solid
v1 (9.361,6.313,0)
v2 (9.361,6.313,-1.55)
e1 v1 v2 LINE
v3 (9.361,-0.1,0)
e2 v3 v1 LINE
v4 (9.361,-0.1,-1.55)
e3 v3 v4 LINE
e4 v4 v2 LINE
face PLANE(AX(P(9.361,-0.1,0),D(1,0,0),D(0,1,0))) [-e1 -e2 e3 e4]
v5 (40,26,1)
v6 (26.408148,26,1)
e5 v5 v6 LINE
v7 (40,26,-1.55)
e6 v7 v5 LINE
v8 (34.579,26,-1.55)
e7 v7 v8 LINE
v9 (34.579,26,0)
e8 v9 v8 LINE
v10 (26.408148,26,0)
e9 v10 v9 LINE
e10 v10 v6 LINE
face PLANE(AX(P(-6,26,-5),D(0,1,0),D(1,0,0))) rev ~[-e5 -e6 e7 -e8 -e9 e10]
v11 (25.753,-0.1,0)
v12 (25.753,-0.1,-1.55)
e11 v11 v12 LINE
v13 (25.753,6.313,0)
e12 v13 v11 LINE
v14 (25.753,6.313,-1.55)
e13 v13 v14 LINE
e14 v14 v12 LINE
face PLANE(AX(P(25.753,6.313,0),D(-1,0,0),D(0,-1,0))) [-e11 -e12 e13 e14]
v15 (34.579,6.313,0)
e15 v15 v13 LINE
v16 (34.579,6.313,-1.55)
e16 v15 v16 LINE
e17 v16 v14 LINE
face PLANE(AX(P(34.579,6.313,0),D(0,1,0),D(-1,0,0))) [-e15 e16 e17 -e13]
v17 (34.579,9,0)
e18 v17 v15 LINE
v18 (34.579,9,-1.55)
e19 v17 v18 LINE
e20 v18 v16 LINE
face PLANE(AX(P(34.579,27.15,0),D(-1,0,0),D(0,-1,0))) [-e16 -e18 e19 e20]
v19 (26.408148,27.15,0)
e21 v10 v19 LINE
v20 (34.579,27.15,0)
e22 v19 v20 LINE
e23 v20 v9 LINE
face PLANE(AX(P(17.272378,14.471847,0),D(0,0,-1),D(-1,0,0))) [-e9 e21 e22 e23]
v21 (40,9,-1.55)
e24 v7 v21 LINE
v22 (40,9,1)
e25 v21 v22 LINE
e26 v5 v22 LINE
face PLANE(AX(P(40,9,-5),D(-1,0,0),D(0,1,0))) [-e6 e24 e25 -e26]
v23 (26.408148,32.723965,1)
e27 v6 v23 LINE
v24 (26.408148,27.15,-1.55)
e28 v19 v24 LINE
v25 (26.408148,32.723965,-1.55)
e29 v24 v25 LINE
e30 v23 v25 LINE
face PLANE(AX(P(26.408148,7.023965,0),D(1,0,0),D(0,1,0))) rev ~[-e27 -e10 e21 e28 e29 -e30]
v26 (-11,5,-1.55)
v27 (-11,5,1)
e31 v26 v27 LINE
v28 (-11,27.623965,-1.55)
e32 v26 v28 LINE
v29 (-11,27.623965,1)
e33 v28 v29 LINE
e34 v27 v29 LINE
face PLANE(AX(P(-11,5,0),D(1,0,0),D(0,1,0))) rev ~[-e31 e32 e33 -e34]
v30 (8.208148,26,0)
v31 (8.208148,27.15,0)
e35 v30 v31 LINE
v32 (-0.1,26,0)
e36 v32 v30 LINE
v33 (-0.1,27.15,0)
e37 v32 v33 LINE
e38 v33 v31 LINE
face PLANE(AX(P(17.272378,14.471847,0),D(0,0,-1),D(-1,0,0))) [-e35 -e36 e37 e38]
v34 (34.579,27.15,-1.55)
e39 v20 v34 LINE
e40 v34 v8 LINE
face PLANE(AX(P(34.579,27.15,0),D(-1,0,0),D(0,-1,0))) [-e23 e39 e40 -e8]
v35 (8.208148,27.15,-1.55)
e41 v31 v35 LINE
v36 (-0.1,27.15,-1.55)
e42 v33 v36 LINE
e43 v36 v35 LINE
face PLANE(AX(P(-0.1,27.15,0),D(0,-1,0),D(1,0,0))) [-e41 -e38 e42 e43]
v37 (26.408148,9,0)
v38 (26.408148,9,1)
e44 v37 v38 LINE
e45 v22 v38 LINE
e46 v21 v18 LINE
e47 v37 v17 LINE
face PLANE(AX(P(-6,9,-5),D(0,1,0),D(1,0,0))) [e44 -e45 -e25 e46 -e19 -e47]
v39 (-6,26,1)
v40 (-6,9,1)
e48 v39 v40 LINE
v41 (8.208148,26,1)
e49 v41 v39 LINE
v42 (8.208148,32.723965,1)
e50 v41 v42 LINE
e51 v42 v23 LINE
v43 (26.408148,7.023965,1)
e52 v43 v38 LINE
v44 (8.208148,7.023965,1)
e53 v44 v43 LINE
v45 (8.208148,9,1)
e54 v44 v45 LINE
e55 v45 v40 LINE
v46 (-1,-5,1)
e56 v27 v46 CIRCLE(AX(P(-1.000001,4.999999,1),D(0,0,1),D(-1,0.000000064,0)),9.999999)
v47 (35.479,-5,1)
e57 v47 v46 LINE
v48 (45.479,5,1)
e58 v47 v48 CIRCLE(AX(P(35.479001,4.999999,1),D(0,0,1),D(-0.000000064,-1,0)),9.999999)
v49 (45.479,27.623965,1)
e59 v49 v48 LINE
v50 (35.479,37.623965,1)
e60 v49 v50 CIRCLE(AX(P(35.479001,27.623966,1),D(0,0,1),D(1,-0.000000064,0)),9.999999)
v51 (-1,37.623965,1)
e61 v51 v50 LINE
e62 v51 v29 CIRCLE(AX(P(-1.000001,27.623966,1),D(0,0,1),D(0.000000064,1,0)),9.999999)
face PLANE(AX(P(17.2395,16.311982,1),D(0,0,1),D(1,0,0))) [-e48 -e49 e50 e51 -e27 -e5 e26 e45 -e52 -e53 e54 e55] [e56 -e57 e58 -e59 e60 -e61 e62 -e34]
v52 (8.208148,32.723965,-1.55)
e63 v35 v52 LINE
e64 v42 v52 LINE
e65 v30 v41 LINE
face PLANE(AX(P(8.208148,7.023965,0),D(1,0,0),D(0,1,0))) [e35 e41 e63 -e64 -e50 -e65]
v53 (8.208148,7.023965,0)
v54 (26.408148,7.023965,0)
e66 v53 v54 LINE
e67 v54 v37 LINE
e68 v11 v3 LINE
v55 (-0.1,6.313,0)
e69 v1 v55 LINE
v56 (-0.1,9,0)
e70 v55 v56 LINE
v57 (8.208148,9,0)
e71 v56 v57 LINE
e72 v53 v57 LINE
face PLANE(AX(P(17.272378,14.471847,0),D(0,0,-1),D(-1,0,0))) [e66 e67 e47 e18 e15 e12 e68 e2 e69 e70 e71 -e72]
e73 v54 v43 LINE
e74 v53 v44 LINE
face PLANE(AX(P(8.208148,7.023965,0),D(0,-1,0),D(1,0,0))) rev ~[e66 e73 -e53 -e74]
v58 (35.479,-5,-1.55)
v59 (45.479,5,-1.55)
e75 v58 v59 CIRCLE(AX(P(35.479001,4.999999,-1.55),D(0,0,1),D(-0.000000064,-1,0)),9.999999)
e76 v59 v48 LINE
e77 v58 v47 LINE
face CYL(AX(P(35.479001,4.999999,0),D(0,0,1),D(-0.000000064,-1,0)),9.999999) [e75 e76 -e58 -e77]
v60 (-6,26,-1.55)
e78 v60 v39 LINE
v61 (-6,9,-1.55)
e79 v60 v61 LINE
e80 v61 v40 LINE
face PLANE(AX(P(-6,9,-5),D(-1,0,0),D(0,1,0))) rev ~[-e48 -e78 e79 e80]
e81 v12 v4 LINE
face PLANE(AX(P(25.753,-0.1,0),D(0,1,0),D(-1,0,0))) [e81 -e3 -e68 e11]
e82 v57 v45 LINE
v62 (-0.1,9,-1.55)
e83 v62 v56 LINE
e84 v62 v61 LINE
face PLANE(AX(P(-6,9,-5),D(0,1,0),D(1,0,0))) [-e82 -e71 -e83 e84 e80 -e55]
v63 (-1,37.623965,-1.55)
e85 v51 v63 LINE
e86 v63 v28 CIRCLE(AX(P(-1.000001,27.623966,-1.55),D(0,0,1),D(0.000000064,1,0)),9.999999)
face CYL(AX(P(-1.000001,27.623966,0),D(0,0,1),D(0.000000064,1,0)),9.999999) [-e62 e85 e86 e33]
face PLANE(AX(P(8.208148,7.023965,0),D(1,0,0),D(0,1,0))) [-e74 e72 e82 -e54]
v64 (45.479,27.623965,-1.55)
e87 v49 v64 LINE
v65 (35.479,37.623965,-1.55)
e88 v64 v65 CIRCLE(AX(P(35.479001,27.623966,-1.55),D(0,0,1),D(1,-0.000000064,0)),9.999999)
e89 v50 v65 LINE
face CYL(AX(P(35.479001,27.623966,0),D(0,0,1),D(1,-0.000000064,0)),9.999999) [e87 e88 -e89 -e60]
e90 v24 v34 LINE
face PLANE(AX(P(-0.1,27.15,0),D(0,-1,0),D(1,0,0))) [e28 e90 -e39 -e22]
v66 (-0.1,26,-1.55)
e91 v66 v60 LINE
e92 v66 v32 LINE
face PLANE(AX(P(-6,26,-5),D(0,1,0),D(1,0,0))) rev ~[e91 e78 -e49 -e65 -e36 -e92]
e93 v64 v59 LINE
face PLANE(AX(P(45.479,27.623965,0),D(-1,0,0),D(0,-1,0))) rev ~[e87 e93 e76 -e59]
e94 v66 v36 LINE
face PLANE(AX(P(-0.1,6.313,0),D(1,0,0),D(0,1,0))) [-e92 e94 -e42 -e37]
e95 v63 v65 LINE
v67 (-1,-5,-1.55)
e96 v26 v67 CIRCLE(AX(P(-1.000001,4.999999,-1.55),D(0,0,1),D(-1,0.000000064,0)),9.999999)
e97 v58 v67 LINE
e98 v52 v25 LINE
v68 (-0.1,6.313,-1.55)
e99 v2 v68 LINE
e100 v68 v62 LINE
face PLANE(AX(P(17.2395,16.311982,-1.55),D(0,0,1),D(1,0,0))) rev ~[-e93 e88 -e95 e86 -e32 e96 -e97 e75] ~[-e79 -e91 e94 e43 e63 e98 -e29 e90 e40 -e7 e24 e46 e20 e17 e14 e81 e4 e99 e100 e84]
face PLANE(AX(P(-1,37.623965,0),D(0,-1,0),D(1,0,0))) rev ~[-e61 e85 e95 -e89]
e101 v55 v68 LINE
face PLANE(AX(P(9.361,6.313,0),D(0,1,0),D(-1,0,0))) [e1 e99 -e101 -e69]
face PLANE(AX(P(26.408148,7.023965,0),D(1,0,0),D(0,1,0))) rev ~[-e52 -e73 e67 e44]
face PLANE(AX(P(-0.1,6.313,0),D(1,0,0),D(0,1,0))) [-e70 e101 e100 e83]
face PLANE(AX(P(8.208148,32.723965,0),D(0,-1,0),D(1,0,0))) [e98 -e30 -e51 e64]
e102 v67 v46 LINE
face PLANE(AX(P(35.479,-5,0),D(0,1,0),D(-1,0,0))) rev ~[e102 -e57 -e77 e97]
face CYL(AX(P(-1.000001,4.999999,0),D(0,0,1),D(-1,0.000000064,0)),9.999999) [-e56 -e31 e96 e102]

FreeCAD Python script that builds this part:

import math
import FreeCAD as App
import Part
import Sketcher
from FreeCAD import Vector


def add_polygon(sketch, points):
    """Adds a closed chain of lines whose ends are joined by coincident constraints."""
    first, n = sketch.GeometryCount, len(points)
    for a, b in zip(points, points[1:] + points[:1]):
        sketch.addGeometry(Part.LineSegment(App.Vector(*a, 0), App.Vector(*b, 0)), False)
    for i in range(n):
        sketch.addConstraint(Sketcher.Constraint("Coincident", first + i, 2, first + (i + 1) % n, 1))

doc = App.newDocument("Part")
body = doc.addObject("PartDesign::Body", "Body")

# Sketch on XY plane
sketch1 = doc.addObject("Sketcher::SketchObject", "Sketch")
body.addObject(sketch1)
sketch1.AttachmentSupport = (doc.XY_Plane, [""])
sketch1.MapMode = "FlatFace"
add_polygon(sketch1, [(35, 27), (0, 27), (0, 6), (9, 6), (9, 0), (26, 0), (26, 6), (35, 6)])  # lines 0-7
sketch1.addConstraint([
    Sketcher.Constraint("Horizontal", 0),
    Sketcher.Constraint("Vertical", 1),
    Sketcher.Constraint("Horizontal", 2),
    Sketcher.Constraint("Vertical", 3),
    Sketcher.Constraint("Horizontal", 4),
    Sketcher.Constraint("Vertical", 5),
    Sketcher.Constraint("Horizontal", 6),
    Sketcher.Constraint("Vertical", 7),
    Sketcher.Constraint("Horizontal", 2, 2, 5, 2),
    Sketcher.Constraint("DistanceX", 0, 2, -1, 1, 0.1),
    Sketcher.Constraint("DistanceY", 3, 2, -1, 1, 0.1),
    Sketcher.Constraint("DistanceX", 0, 2, 0, 1, 34.679),
    Sketcher.Constraint("DistanceX", 2, 1, 2, 2, 9.461),
    Sketcher.Constraint("DistanceX", 4, 1, 4, 2, 16.392),
    Sketcher.Constraint("DistanceY", 1, 2, 1, 1, 20.837),
    Sketcher.Constraint("DistanceY", 3, 2, 3, 1, 6.413),
])
pad1 = doc.addObject("PartDesign::Pad", "Pad")
body.addObject(pad1)
pad1.Profile = sketch1
pad1.Length = 4
pad1.Reversed = True
body2 = doc.addObject("PartDesign::Body", "Body001")

# Sketch on XY plane
sketch2 = doc.addObject("Sketcher::SketchObject", "Sketch001")
body2.addObject(sketch2)
sketch2.AttachmentSupport = (doc.getObject("XY_Plane001"), [""])
sketch2.MapMode = "FlatFace"
sketch2.AttachmentOffset = App.Placement(Vector(0, 0, -5), App.Rotation())
add_polygon(sketch2, [(-6, 26), (-6, 9), (40, 9), (40, 26)])  # lines 0-3
sketch2.addConstraint([
    Sketcher.Constraint("Vertical", 0),
    Sketcher.Constraint("Horizontal", 1),
    Sketcher.Constraint("Vertical", 2),
    Sketcher.Constraint("Horizontal", 3),
    Sketcher.Constraint("DistanceX", 1, 1, 1, 2, 46.0),
    Sketcher.Constraint("DistanceY", 0, 2, 0, 1, 17.0),
    Sketcher.Constraint("DistanceX", 0, 2, -1, 1, 6.0),
    Sketcher.Constraint("DistanceY", -1, 1, 0, 2, 9.0),
])
pad2 = doc.addObject("PartDesign::Pad", "Pad001")
body2.addObject(pad2)
pad2.Profile = sketch2
pad2.Length = 10
body3 = doc.addObject("PartDesign::Body", "Body002")

# Sketch on XY plane
sketch3 = doc.addObject("Sketcher::SketchObject", "Sketch002")
body3.addObject(sketch3)
sketch3.AttachmentSupport = (doc.getObject("XY_Plane002"), [""])
sketch3.MapMode = "FlatFace"
add_polygon(sketch3, [(8, 33), (8, 7), (26, 7), (26, 33)])  # lines 0-3
sketch3.addConstraint([
    Sketcher.Constraint("Vertical", 0),
    Sketcher.Constraint("Horizontal", 1),
    Sketcher.Constraint("Vertical", 2),
    Sketcher.Constraint("Horizontal", 3),
    Sketcher.Constraint("DistanceX", 1, 1, 1, 2, 18.2),
    Sketcher.Constraint("DistanceY", 0, 2, 0, 1, 25.7),
    Sketcher.Constraint("DistanceX", -1, 1, 1, 2, 26.408148),
    Sketcher.Constraint("DistanceY", -1, 1, 0, 2, 7.023965),
])
pad3 = doc.addObject("PartDesign::Pad", "Pad002")
body3.addObject(pad3)
pad3.Profile = sketch3
pad3.Length = 20
pad3.Midplane = True
doc.recompute()

boolean = doc.addObject("PartDesign::Boolean", "Boolean")
body3.addObject(boolean)
boolean.Type = "Fuse"
boolean.addObjects([body])
doc.recompute()

boolean2 = doc.addObject("PartDesign::Boolean", "Boolean001")
body3.addObject(boolean2)
boolean2.Type = "Fuse"
boolean2.addObjects([body2])
body4 = doc.addObject("PartDesign::Body", "Body003")

# Sketch on XY plane
sketch4 = doc.addObject("Sketcher::SketchObject", "Sketch003")
body4.addObject(sketch4)
sketch4.AttachmentSupport = (doc.getObject("XY_Plane003"), [""])
sketch4.MapMode = "FlatFace"
sketch4.addGeometry([
    Part.ArcOfCircle(Part.Circle(Vector(-1, 28, 0), Vector(0, 0, 1), 10), math.radians(90), math.radians(180)),  # 0
    Part.LineSegment(Vector(-11, 28, 0), Vector(-11, 5, 0)),  # 1
    Part.ArcOfCircle(Part.Circle(Vector(-1, 5, 0), Vector(0, 0, 1), 10), math.radians(180), math.radians(270)),  # 2
    Part.LineSegment(Vector(-1, -5, 0), Vector(35, -5, 0)),  # 3
    Part.ArcOfCircle(Part.Circle(Vector(35, 5, 0), Vector(0, 0, 1), 10), math.radians(-90), math.radians(0)),  # 4
    Part.LineSegment(Vector(45, 5, 0), Vector(45, 28, 0)),  # 5
    Part.ArcOfCircle(Part.Circle(Vector(35, 28, 0), Vector(0, 0, 1), 10), math.radians(0), math.radians(90)),  # 6
    Part.LineSegment(Vector(35, 38, 0), Vector(-1, 38, 0)),  # 7
], False)
sketch4.addConstraint([
    Sketcher.Constraint("Tangent", 0, 2, 1, 1),
    Sketcher.Constraint("Tangent", 1, 2, 2, 1),
    Sketcher.Constraint("Tangent", 2, 2, 3, 1),
    Sketcher.Constraint("Tangent", 3, 2, 4, 1),
    Sketcher.Constraint("Tangent", 4, 2, 5, 1),
    Sketcher.Constraint("Tangent", 5, 2, 6, 1),
    Sketcher.Constraint("Tangent", 6, 2, 7, 1),
    Sketcher.Constraint("Tangent", 7, 2, 0, 1),
    Sketcher.Constraint("Vertical", 1),
    Sketcher.Constraint("Horizontal", 3),
    Sketcher.Constraint("Vertical", 5),
    Sketcher.Constraint("Horizontal", 7),
    Sketcher.Constraint("Equal", 0, 2),
    Sketcher.Constraint("Equal", 2, 4),
    Sketcher.Constraint("Equal", 4, 6),
    Sketcher.Constraint("Radius", 0, 9.999999),
    Sketcher.Constraint("DistanceX", 0, 3, -1, 1, 1.000001),
    Sketcher.Constraint("DistanceY", -1, 1, 2, 3, 4.999999),
    Sketcher.Constraint("DistanceX", 3, 1, 3, 2, 36.479),
    Sketcher.Constraint("DistanceY", 1, 2, 1, 1, 22.623965),
])
pad4 = doc.addObject("PartDesign::Pad", "Pad003")
body4.addObject(pad4)
pad4.Profile = sketch4
pad4.Type = "TwoLengths"
pad4.Length = 1
pad4.Length2 = 1.55
doc.recompute()

boolean3 = doc.addObject("PartDesign::Boolean", "Boolean002")
body4.addObject(boolean3)
boolean3.Type = "Cut"
boolean3.addObjects([body3])

doc.recompute()
